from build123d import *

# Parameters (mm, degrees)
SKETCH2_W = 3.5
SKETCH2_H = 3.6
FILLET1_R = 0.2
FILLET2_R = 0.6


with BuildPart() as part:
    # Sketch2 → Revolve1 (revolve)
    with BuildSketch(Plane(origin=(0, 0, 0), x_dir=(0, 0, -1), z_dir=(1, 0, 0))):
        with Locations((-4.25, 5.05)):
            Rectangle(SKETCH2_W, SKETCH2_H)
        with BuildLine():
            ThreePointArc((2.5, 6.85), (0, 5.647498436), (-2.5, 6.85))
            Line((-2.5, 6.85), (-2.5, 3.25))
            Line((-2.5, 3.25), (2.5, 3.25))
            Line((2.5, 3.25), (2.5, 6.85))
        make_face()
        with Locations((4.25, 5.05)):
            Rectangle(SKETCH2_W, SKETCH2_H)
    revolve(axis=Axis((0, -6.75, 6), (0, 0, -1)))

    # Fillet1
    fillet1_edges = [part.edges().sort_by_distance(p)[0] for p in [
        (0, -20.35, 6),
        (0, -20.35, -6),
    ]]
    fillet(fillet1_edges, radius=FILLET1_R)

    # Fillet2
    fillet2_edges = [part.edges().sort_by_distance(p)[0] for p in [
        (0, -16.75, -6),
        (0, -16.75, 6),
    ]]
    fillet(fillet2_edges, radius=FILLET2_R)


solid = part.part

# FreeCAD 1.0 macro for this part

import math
import FreeCAD as App
import Part
import Sketcher

V = App.Vector


def edges_at(feature, points):
    """Names of the edges that pass closest to the given points."""
    edges = feature.Shape.Edges
    near = lambda p: min(range(len(edges)), key=lambda i: edges[i].distToShape(Part.Vertex(*p))[0])
    return sorted({f"Edge{near(p) + 1}" for p in points})

doc = App.newDocument("Part")
body = doc.addObject("PartDesign::Body", "Body")

# Sketch on YZ plane
sketch1 = body.newObject("Sketcher::SketchObject", "Sketch")
sketch1.AttachmentSupport = (doc.getObject("YZ_Plane"), [""])
sketch1.MapMode = "FlatFace"
sketch1.addGeometry(Part.LineSegment(V(6.8, 6, 0), V(3.2, 6, 0)), False)
sketch1.addGeometry(Part.LineSegment(V(3.2, 6, 0), V(3.2, -6, 0)), False)
sketch1.addGeometry(Part.LineSegment(V(3.2, -6, 0), V(6.8, -6, 0)), False)
sketch1.addGeometry(Part.LineSegment(V(6.8, -6, 0), V(6.8, -2.5, 0)), False)
sketch1.addGeometry(Part.ArcOfCircle(Part.Circle(V(8.8, 0, 0), V(0, 0, 1), 3.2), math.radians(129), math.radians(231)), False)
sketch1.addGeometry(Part.LineSegment(V(6.8, 2.5, 0), V(6.8, 6, 0)), False)
sketch1.addGeometry(Part.LineSegment(V(-6.8, 6, 0), V(-6.8, -6, 0)), True)  # axis
sketch1.addConstraint(Sketcher.Constraint("Coincident", 0, 2, 1, 1))
sketch1.addConstraint(Sketcher.Constraint("Coincident", 1, 2, 2, 1))
sketch1.addConstraint(Sketcher.Constraint("Coincident", 2, 2, 3, 1))
sketch1.addConstraint(Sketcher.Constraint("Coincident", 3, 2, 4, 2))
sketch1.addConstraint(Sketcher.Constraint("Coincident", 4, 1, 5, 1))
sketch1.addConstraint(Sketcher.Constraint("Coincident", 5, 2, 0, 1))
sketch1.addConstraint(Sketcher.Constraint("Horizontal", 0))
sketch1.addConstraint(Sketcher.Constraint("Vertical", 1))
sketch1.addConstraint(Sketcher.Constraint("Horizontal", 2))
sketch1.addConstraint(Sketcher.Constraint("Vertical", 3))
sketch1.addConstraint(Sketcher.Constraint("Vertical", 5))
sketch1.addConstraint(Sketcher.Constraint("Vertical", 6))
sketch1.addConstraint(Sketcher.Constraint("Symmetric", 3, 2, 4, 1, -1))
sketch1.addConstraint(Sketcher.Constraint("Horizontal", 5, 2, 6, 1))
sketch1.addConstraint(Sketcher.Constraint("Horizontal", 2, 2, 6, 2))
sketch1.addConstraint(Sketcher.Constraint("Equal", 3, 5))
sketch1.addConstraint(Sketcher.Constraint("Radius", 4, 3.2))
sketch1.addConstraint(Sketcher.Constraint("DistanceY", 1, 2, 1, 1, 12.0))
sketch1.addConstraint(Sketcher.Constraint("DistanceX", 0, 2, 0, 1, 3.6))
sketch1.addConstraint(Sketcher.Constraint("DistanceY", 3, 1, 3, 2, 3.5))
sketch1.addConstraint(Sketcher.Constraint("DistanceX", 6, 1, 0, 2, 10.0))
sketch1.addConstraint(Sketcher.Constraint("DistanceX", -1, 1, 0, 2, 3.25))
revolution = body.newObject("PartDesign::Revolution", "Revolution")
revolution.Profile = sketch1
revolution.ReferenceAxis = (sketch1, ["Axis0"])
revolution.Angle = 360
doc.recompute()

fillet = body.newObject("PartDesign::Fillet", "Fillet")
fillet.Base = (revolution, edges_at(revolution, [(0, -20.35, 6), (0, -20.35, -6)]))
fillet.Radius = 0.2
doc.recompute()

fillet2 = body.newObject("PartDesign::Fillet", "Fillet001")
fillet2.Base = (fillet, edges_at(fillet, [(0, -16.75, -6), (0, -16.75, 6)]))
fillet2.Radius = 0.6

doc.recompute()
